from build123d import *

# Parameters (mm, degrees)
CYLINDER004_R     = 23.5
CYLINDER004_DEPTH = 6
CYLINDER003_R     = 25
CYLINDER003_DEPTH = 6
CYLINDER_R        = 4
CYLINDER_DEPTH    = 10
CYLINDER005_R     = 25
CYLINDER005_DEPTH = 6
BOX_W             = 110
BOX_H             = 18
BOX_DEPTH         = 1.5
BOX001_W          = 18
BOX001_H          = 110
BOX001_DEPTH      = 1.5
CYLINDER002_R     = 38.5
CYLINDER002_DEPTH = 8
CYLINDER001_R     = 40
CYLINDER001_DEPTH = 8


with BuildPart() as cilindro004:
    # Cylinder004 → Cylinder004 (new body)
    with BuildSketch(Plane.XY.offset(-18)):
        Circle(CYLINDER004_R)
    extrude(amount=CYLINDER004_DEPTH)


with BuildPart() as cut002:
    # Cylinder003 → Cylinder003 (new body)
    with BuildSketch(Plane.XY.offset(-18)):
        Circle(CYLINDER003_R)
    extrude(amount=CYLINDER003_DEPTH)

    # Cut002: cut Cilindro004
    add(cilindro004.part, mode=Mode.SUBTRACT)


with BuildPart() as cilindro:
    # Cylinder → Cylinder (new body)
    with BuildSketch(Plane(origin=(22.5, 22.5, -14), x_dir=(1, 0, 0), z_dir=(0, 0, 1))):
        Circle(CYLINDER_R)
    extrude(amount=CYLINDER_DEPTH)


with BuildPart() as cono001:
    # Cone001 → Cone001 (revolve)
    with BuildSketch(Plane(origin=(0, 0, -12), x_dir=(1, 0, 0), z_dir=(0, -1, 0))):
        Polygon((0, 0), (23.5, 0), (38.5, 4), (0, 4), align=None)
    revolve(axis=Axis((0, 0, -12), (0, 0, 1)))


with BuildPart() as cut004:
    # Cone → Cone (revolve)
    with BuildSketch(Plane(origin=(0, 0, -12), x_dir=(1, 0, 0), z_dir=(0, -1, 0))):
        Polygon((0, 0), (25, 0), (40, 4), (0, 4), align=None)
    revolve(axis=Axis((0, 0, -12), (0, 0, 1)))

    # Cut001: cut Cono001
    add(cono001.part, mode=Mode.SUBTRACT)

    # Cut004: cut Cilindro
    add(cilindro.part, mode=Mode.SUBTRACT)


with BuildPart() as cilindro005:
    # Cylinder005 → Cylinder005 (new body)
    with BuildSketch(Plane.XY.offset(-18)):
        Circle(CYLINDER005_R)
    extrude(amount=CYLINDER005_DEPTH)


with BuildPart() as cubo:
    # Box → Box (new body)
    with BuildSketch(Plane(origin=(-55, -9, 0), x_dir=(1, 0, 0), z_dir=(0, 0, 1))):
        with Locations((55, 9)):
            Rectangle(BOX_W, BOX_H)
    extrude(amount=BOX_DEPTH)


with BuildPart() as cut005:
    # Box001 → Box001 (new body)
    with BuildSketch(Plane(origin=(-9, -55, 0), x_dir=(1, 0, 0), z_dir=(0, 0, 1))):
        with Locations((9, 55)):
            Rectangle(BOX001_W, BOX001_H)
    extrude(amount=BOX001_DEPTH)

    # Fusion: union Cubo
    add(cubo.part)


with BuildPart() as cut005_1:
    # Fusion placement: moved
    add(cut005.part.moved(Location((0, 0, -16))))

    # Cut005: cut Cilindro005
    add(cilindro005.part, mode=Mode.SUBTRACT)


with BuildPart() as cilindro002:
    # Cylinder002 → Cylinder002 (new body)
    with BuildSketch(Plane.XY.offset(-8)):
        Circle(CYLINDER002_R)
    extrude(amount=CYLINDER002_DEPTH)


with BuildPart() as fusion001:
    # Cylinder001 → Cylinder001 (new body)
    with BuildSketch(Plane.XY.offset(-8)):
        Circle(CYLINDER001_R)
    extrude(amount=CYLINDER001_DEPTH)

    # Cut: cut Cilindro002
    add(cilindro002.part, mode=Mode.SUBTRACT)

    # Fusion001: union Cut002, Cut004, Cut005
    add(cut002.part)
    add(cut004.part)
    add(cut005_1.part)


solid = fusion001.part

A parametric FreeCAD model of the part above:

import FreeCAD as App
import Part
import Sketcher

V = App.Vector
Q = App.Units.Quantity


def add_polygon(sketch, points):
    """Adds a closed chain of lines whose ends are joined by coincident constraints."""
    first, n = sketch.GeometryCount, len(points)
    for a, b in zip(points, points[1:] + points[:1]):
        sketch.addGeometry(Part.LineSegment(App.Vector(*a, 0), App.Vector(*b, 0)), False)
    for i in range(n):
        sketch.addConstraint(Sketcher.Constraint("Coincident", first + i, 2, first + (i + 1) % n, 1))

doc = App.newDocument("Part")
params = doc.addObject("Spreadsheet::Sheet", "Params")
for row, (alias, value) in enumerate([
    ("sketch1_diameter", "47 mm"),
    ("pad1_length", "6 mm"),
    ("sketch2_diameter", "50 mm"),
    ("pad2_length", "6 mm"),
    ("sketch3_diameter", "8 mm"),
    ("pad3_length", "10 mm"),
    ("sketch4_height", "4 mm"),
    ("sketch4_width", "23.5 mm"),
    ("sketch4_width2", "38.5 mm"),
    ("revolution_angle", "360 deg"),
    ("sketch5_width", "25 mm"),
    ("sketch5_width2", "40 mm"),
    ("sketch5_height", "4 mm"),
    ("revolution2_angle", "360 deg"),
    ("sketch6_diameter", "50 mm"),
    ("pad4_length", "6 mm"),
    ("sketch7_width", "110 mm"),
    ("sketch7_height", "18 mm"),
    ("pad5_length", "1.5 mm"),
    ("sketch8_width", "18 mm"),
    ("sketch8_height", "110 mm"),
    ("pad6_length", "1.5 mm"),
    ("sketch9_diameter", "77 mm"),
    ("pad7_length", "8 mm"),
    ("sketch10_diameter", "80 mm"),
    ("pad8_length", "8 mm"),
], start=1):
    params.set(f"A{row}", alias)
    params.set(f"B{row}", "=" + value)
    params.setAlias(f"B{row}", alias)

body = doc.addObject("PartDesign::Body", "Body")

# Sketch on XY plane
sketch1 = doc.addObject("Sketcher::SketchObject", "Sketch")
body.addObject(sketch1)
sketch1.AttachmentSupport = (doc.XY_Plane, [""])
sketch1.MapMode = "FlatFace"
sketch1.AttachmentOffset = App.Placement(V(0, 0, -18), App.Rotation())
sketch1.addGeometry(Part.Circle(V(0, 0, 0), V(0, 0, 1), 24), False)
sketch1.addConstraint(Sketcher.Constraint("Coincident", 0, 3, -1, 1))
sketch1.addConstraint(Sketcher.Constraint("Diameter", 0, Q("47 mm")))
sketch1.setExpression("Constraints[1]", "Params.sketch1_diameter")
pad1 = doc.addObject("PartDesign::Pad", "Pad")
body.addObject(pad1)
pad1.Profile = sketch1
pad1.setExpression("Length", "Params.pad1_length")
body2 = doc.addObject("PartDesign::Body", "Body001")

# Sketch on XY plane
sketch2 = doc.addObject("Sketcher::SketchObject", "Sketch001")
body2.addObject(sketch2)
sketch2.AttachmentSupport = (doc.getObject("XY_Plane001"), [""])
sketch2.MapMode = "FlatFace"
sketch2.AttachmentOffset = App.Placement(V(0, 0, -18), App.Rotation())
sketch2.addGeometry(Part.Circle(V(0, 0, 0), V(0, 0, 1), 25), False)
sketch2.addConstraint(Sketcher.Constraint("Coincident", 0, 3, -1, 1))
sketch2.addConstraint(Sketcher.Constraint("Diameter", 0, Q("50 mm")))
sketch2.setExpression("Constraints[1]", "Params.sketch2_diameter")
pad2 = doc.addObject("PartDesign::Pad", "Pad001")
body2.addObject(pad2)
pad2.Profile = sketch2
pad2.setExpression("Length", "Params.pad2_length")
doc.recompute()

boolean = doc.addObject("PartDesign::Boolean", "Boolean")
body2.addObject(boolean)
boolean.Type = "Cut"
boolean.addObjects([body])
body3 = doc.addObject("PartDesign::Body", "Body002")

# Sketch on XY plane
sketch3 = doc.addObject("Sketcher::SketchObject", "Sketch002")
body3.addObject(sketch3)
sketch3.AttachmentSupport = (doc.getObject("XY_Plane002"), [""])
sketch3.MapMode = "FlatFace"
sketch3.AttachmentOffset = App.Placement(V(0, 0, -14), App.Rotation())
sketch3.addGeometry(Part.Circle(V(22.5, 22.5, 0), V(0, 0, 1), 4), False)
sketch3.addConstraint(Sketcher.Constraint("Diameter", 0, Q("8 mm")))
sketch3.addConstraint(Sketcher.Constraint("DistanceX", -1, 1, 0, 3, Q("22.5 mm")))
sketch3.addConstraint(Sketcher.Constraint("DistanceY", -1, 1, 0, 3, Q("22.5 mm")))
sketch3.setExpression("Constraints[0]", "Params.sketch3_diameter")
pad3 = doc.addObject("PartDesign::Pad", "Pad002")
body3.addObject(pad3)
pad3.Profile = sketch3
pad3.setExpression("Length", "Params.pad3_length")
body4 = doc.addObject("PartDesign::Body", "Body003")

# Sketch on XZ plane
sketch4 = doc.addObject("Sketcher::SketchObject", "Sketch003")
body4.addObject(sketch4)
sketch4.AttachmentSupport = (doc.getObject("XZ_Plane003"), [""])
sketch4.MapMode = "FlatFace"
add_polygon(sketch4, [(0, -12), (23.5, -12), (38.5, -8), (0, -8)])  # lines 0-3
sketch4.addConstraint(Sketcher.Constraint("Horizontal", 0))
sketch4.addConstraint(Sketcher.Constraint("Horizontal", 2))
sketch4.addConstraint(Sketcher.Constraint("Vertical", 3))
sketch4.addConstraint(Sketcher.Constraint("PointOnObject", 2, 2, -2))
sketch4.addConstraint(Sketcher.Constraint("DistanceY", 3, 2, 3, 1, Q("4 mm")))
sketch4.addConstraint(Sketcher.Constraint("DistanceX", 0, 1, 0, 2, Q("23.5 mm")))
sketch4.addConstraint(Sketcher.Constraint("DistanceX", 2, 2, 2, 1, Q("38.5 mm")))
sketch4.addConstraint(Sketcher.Constraint("DistanceY", 0, 2, -1, 1, Q("12 mm")))
sketch4.setExpression("Constraints[8]", "Params.sketch4_height")
sketch4.setExpression("Constraints[9]", "Params.sketch4_width")
sketch4.setExpression("Constraints[10]", "Params.sketch4_width2")
revolution = doc.addObject("PartDesign::Revolution", "Revolution")
body4.addObject(revolution)
revolution.Profile = sketch4
revolution.ReferenceAxis = (sketch4, ["V_Axis"])
revolution.setExpression("Angle", "Params.revolution_angle")
body5 = doc.addObject("PartDesign::Body", "Body004")

# Sketch on XZ plane
sketch5 = doc.addObject("Sketcher::SketchObject", "Sketch004")
body5.addObject(sketch5)
sketch5.AttachmentSupport = (doc.getObject("XZ_Plane004"), [""])
sketch5.MapMode = "FlatFace"
add_polygon(sketch5, [(0, -12), (25, -12), (40, -8), (0, -8)])  # lines 0-3
sketch5.addConstraint(Sketcher.Constraint("Horizontal", 0))
sketch5.addConstraint(Sketcher.Constraint("Horizontal", 2))
sketch5.addConstraint(Sketcher.Constraint("Vertical", 3))
sketch5.addConstraint(Sketcher.Constraint("PointOnObject", 2, 2, -2))
sketch5.addConstraint(Sketcher.Constraint("DistanceX", 0, 1, 0, 2, Q("25 mm")))
sketch5.addConstraint(Sketcher.Constraint("DistanceX", 2, 2, 2, 1, Q("40 mm")))
sketch5.addConstraint(Sketcher.Constraint("DistanceY", 3, 2, 3, 1, Q("4 mm")))
sketch5.addConstraint(Sketcher.Constraint("DistanceY", 0, 2, -1, 1, Q("12 mm")))
sketch5.setExpression("Constraints[8]", "Params.sketch5_width")
sketch5.setExpression("Constraints[9]", "Params.sketch5_width2")
sketch5.setExpression("Constraints[10]", "Params.sketch5_height")
revolution2 = doc.addObject("PartDesign::Revolution", "Revolution001")
body5.addObject(revolution2)
revolution2.Profile = sketch5
revolution2.ReferenceAxis = (sketch5, ["V_Axis"])
revolution2.setExpression("Angle", "Params.revolution2_angle")
doc.recompute()

boolean2 = doc.addObject("PartDesign::Boolean", "Boolean001")
body5.addObject(boolean2)
boolean2.Type = "Cut"
boolean2.addObjects([body4])
doc.recompute()

boolean3 = doc.addObject("PartDesign::Boolean", "Boolean002")
body5.addObject(boolean3)
boolean3.Type = "Cut"
boolean3.addObjects([body3])
body6 = doc.addObject("PartDesign::Body", "Body005")

# Sketch on XY plane
sketch6 = doc.addObject("Sketcher::SketchObject", "Sketch005")
body6.addObject(sketch6)
sketch6.AttachmentSupport = (doc.getObject("XY_Plane005"), [""])
sketch6.MapMode = "FlatFace"
sketch6.AttachmentOffset = App.Placement(V(0, 0, -18), App.Rotation())
sketch6.addGeometry(Part.Circle(V(0, 0, 0), V(0, 0, 1), 25), False)
sketch6.addConstraint(Sketcher.Constraint("Coincident", 0, 3, -1, 1))
sketch6.addConstraint(Sketcher.Constraint("Diameter", 0, Q("50 mm")))
sketch6.setExpression("Constraints[1]", "Params.sketch6_diameter")
pad4 = doc.addObject("PartDesign::Pad", "Pad003")
body6.addObject(pad4)
pad4.Profile = sketch6
pad4.setExpression("Length", "Params.pad4_length")
body7 = doc.addObject("PartDesign::Body", "Body006")

# Sketch on XY plane
sketch7 = doc.addObject("Sketcher::SketchObject", "Sketch006")
body7.addObject(sketch7)
sketch7.AttachmentSupport = (doc.getObject("XY_Plane006"), [""])
sketch7.MapMode = "FlatFace"
add_polygon(sketch7, [(-55, 9), (-55, -9), (55, -9), (55, 9)])  # lines 0-3
sketch7.addConstraint(Sketcher.Constraint("Vertical", 0))
sketch7.addConstraint(Sketcher.Constraint("Horizontal", 1))
sketch7.addConstraint(Sketcher.Constraint("Vertical", 2))
sketch7.addConstraint(Sketcher.Constraint("Horizontal", 3))
sketch7.addConstraint(Sketcher.Constraint("Symmetric", 0, 2, 2, 2, -1, 1))
sketch7.addConstraint(Sketcher.Constraint("DistanceX", 1, 1, 1, 2, Q("110 mm")))
sketch7.addConstraint(Sketcher.Constraint("DistanceY", 0, 2, 0, 1, Q("18 mm")))
sketch7.setExpression("Constraints[9]", "Params.sketch7_width")
sketch7.setExpression("Constraints[10]", "Params.sketch7_height")
pad5 = doc.addObject("PartDesign::Pad", "Pad004")
body7.addObject(pad5)
pad5.Profile = sketch7
pad5.setExpression("Length", "Params.pad5_length")
body8 = doc.addObject("PartDesign::Body", "Body007")

# Sketch on XY plane
sketch8 = doc.addObject("Sketcher::SketchObject", "Sketch007")
body8.addObject(sketch8)
sketch8.AttachmentSupport = (doc.getObject("XY_Plane007"), [""])
sketch8.MapMode = "FlatFace"
add_polygon(sketch8, [(-9, 55), (-9, -55), (9, -55), (9, 55)])  # lines 0-3
sketch8.addConstraint(Sketcher.Constraint("Vertical", 0))
sketch8.addConstraint(Sketcher.Constraint("Horizontal", 1))
sketch8.addConstraint(Sketcher.Constraint("Vertical", 2))
sketch8.addConstraint(Sketcher.Constraint("Horizontal", 3))
sketch8.addConstraint(Sketcher.Constraint("Symmetric", 0, 2, 2, 2, -1, 1))
sketch8.addConstraint(Sketcher.Constraint("DistanceX", 1, 1, 1, 2, Q("18 mm")))
sketch8.addConstraint(Sketcher.Constraint("DistanceY", 0, 2, 0, 1, Q("110 mm")))
sketch8.setExpression("Constraints[9]", "Params.sketch8_width")
sketch8.setExpression("Constraints[10]", "Params.sketch8_height")
pad6 = doc.addObject("PartDesign::Pad", "Pad005")
body8.addObject(pad6)
pad6.Profile = sketch8
pad6.setExpression("Length", "Params.pad6_length")
doc.recompute()

boolean4 = doc.addObject("PartDesign::Boolean", "Boolean003")
body8.addObject(boolean4)
boolean4.Type = "Fuse"
boolean4.addObjects([body7])
body9 = doc.addObject("PartDesign::Body", "Body008")
body9.AllowCompound = True
doc.recompute()

body8.Placement = App.Placement(V(0, 0, -16), App.Rotation(V(0, 0, 1), 0))
boolean5 = doc.addObject("PartDesign::Boolean", "Boolean004")
body9.addObject(boolean5)
boolean5.Type = "Fuse"
boolean5.addObjects([body8])
doc.recompute()

boolean6 = doc.addObject("PartDesign::Boolean", "Boolean005")
body9.addObject(boolean6)
boolean6.Type = "Cut"
boolean6.addObjects([body6])
body10 = doc.addObject("PartDesign::Body", "Body009")

# Sketch on XY plane
sketch9 = doc.addObject("Sketcher::SketchObject", "Sketch008")
body10.addObject(sketch9)
sketch9.AttachmentSupport = (doc.getObject("XY_Plane009"), [""])
sketch9.MapMode = "FlatFace"
sketch9.AttachmentOffset = App.Placement(V(0, 0, -8), App.Rotation())
sketch9.addGeometry(Part.Circle(V(0, 0, 0), V(0, 0, 1), 38), False)
sketch9.addConstraint(Sketcher.Constraint("Coincident", 0, 3, -1, 1))
sketch9.addConstraint(Sketcher.Constraint("Diameter", 0, Q("77 mm")))
sketch9.setExpression("Constraints[1]", "Params.sketch9_diameter")
pad7 = doc.addObject("PartDesign::Pad", "Pad006")
body10.addObject(pad7)
pad7.Profile = sketch9
pad7.setExpression("Length", "Params.pad7_length")
body11 = doc.addObject("PartDesign::Body", "Body010")
body11.AllowCompound = True

# Sketch on XY plane
sketch10 = doc.addObject("Sketcher::SketchObject", "Sketch009")
body11.addObject(sketch10)
sketch10.AttachmentSupport = (doc.getObject("XY_Plane010"), [""])
sketch10.MapMode = "FlatFace"
sketch10.AttachmentOffset = App.Placement(V(0, 0, -8), App.Rotation())
sketch10.addGeometry(Part.Circle(V(0, 0, 0), V(0, 0, 1), 40), False)
sketch10.addConstraint(Sketcher.Constraint("Coincident", 0, 3, -1, 1))
sketch10.addConstraint(Sketcher.Constraint("Diameter", 0, Q("80 mm")))
sketch10.setExpression("Constraints[1]", "Params.sketch10_diameter")
pad8 = doc.addObject("PartDesign::Pad", "Pad007")
body11.addObject(pad8)
pad8.Profile = sketch10
pad8.setExpression("Length", "Params.pad8_length")
doc.recompute()

boolean7 = doc.addObject("PartDesign::Boolean", "Boolean006")
body11.addObject(boolean7)
boolean7.Type = "Cut"
boolean7.addObjects([body10])
doc.recompute()

boolean8 = doc.addObject("PartDesign::Boolean", "Boolean007")
body11.addObject(boolean8)
boolean8.Type = "Fuse"
boolean8.addObjects([body2])
doc.recompute()

boolean9 = doc.addObject("PartDesign::Boolean", "Boolean008")
body11.addObject(boolean9)
boolean9.Type = "Fuse"
boolean9.addObjects([body5])
doc.recompute()

boolean10 = doc.addObject("PartDesign::Boolean", "Boolean009")
body11.addObject(boolean10)
boolean10.Type = "Fuse"
boolean10.addObjects([body9])

doc.recompute()
